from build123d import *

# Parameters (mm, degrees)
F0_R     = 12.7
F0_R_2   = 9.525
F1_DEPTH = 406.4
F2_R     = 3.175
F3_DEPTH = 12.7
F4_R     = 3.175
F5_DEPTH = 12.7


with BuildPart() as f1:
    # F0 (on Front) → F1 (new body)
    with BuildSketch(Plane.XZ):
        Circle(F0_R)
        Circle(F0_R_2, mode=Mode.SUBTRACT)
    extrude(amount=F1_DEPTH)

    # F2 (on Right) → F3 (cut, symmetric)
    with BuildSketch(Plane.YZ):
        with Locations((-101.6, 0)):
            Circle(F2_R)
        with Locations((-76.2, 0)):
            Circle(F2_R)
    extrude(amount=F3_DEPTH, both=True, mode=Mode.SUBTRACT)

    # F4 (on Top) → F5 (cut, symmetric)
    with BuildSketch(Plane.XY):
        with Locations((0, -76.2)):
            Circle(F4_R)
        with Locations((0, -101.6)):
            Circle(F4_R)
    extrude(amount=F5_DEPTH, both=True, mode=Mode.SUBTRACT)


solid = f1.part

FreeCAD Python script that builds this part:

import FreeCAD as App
import Part
import Sketcher
Q = App.Units.Quantity

doc = App.newDocument("Part")
body = doc.addObject("PartDesign::Body", "Body")

sketch1 = doc.addObject("Sketcher::SketchObject", "Sketch")
body.addObject(sketch1)
sketch1.AttachmentSupport = (doc.XZ_Plane, [""])
sketch1.MapMode = "FlatFace"
sketch1.addGeometry([
    Part.Circle(App.Vector(0, 0, 0), App.Vector(0, 0, 1), 13),
    Part.Circle(App.Vector(0, 0, 0), App.Vector(0, 0, 1), 10),
], False)
sketch1.addConstraint([
    Sketcher.Constraint("Coincident", 0, 3, -1, 1),
    Sketcher.Constraint("Coincident", 1, 3, -1, 1),
    Sketcher.Constraint("Diameter", 0, Q("1 in")),
    Sketcher.Constraint("Diameter", 1, Q("0.75 in")),
])
pad1 = doc.addObject("PartDesign::Pad", "Pad")
body.addObject(pad1)
pad1.Profile = sketch1
pad1.Length = Q("16 in")

sketch2 = doc.addObject("Sketcher::SketchObject", "Sketch001")
body.addObject(sketch2)
sketch2.AttachmentSupport = (doc.YZ_Plane, [""])
sketch2.MapMode = "FlatFace"
sketch2.addGeometry([
    Part.Circle(App.Vector(-101.6, 0, 0), App.Vector(0, 0, 1), 3.2),
    Part.Circle(App.Vector(-76.2, 0, 0), App.Vector(0, 0, 1), 3.2),
], False)
sketch2.addConstraint([
    Sketcher.Constraint("Equal", 0, 1),
    Sketcher.Constraint("PointOnObject", 0, 3, -1),
    Sketcher.Constraint("PointOnObject", 1, 3, -1),
    Sketcher.Constraint("Diameter", 0, Q("0.25 in")),
    Sketcher.Constraint("DistanceX", 0, 3, -1, 1, Q("4 in")),
    Sketcher.Constraint("DistanceX", 1, 3, -1, 1, Q("3 in")),
])
pocket1 = doc.addObject("PartDesign::Pocket", "Pocket")
body.addObject(pocket1)
pocket1.Profile = sketch2
pocket1.Length = Q("1 in")
pocket1.Midplane = True

sketch3 = doc.addObject("Sketcher::SketchObject", "Sketch002")
body.addObject(sketch3)
sketch3.AttachmentSupport = (doc.XY_Plane, [""])
sketch3.MapMode = "FlatFace"
sketch3.addGeometry([
    Part.Circle(App.Vector(0, -76.2, 0), App.Vector(0, 0, 1), 3.2),
    Part.Circle(App.Vector(0, -101.6, 0), App.Vector(0, 0, 1), 3.2),
], False)
sketch3.addConstraint([
    Sketcher.Constraint("Equal", 0, 1),
    Sketcher.Constraint("PointOnObject", 0, 3, -2),
    Sketcher.Constraint("PointOnObject", 1, 3, -2),
    Sketcher.Constraint("Diameter", 0, Q("0.25 in")),
    Sketcher.Constraint("DistanceY", 0, 3, -1, 1, Q("3 in")),
    Sketcher.Constraint("DistanceY", 1, 3, -1, 1, Q("4 in")),
])
pocket2 = doc.addObject("PartDesign::Pocket", "Pocket001")
body.addObject(pocket2)
pocket2.Profile = sketch3
pocket2.Length = Q("1 in")
pocket2.Midplane = True

doc.recompute()
